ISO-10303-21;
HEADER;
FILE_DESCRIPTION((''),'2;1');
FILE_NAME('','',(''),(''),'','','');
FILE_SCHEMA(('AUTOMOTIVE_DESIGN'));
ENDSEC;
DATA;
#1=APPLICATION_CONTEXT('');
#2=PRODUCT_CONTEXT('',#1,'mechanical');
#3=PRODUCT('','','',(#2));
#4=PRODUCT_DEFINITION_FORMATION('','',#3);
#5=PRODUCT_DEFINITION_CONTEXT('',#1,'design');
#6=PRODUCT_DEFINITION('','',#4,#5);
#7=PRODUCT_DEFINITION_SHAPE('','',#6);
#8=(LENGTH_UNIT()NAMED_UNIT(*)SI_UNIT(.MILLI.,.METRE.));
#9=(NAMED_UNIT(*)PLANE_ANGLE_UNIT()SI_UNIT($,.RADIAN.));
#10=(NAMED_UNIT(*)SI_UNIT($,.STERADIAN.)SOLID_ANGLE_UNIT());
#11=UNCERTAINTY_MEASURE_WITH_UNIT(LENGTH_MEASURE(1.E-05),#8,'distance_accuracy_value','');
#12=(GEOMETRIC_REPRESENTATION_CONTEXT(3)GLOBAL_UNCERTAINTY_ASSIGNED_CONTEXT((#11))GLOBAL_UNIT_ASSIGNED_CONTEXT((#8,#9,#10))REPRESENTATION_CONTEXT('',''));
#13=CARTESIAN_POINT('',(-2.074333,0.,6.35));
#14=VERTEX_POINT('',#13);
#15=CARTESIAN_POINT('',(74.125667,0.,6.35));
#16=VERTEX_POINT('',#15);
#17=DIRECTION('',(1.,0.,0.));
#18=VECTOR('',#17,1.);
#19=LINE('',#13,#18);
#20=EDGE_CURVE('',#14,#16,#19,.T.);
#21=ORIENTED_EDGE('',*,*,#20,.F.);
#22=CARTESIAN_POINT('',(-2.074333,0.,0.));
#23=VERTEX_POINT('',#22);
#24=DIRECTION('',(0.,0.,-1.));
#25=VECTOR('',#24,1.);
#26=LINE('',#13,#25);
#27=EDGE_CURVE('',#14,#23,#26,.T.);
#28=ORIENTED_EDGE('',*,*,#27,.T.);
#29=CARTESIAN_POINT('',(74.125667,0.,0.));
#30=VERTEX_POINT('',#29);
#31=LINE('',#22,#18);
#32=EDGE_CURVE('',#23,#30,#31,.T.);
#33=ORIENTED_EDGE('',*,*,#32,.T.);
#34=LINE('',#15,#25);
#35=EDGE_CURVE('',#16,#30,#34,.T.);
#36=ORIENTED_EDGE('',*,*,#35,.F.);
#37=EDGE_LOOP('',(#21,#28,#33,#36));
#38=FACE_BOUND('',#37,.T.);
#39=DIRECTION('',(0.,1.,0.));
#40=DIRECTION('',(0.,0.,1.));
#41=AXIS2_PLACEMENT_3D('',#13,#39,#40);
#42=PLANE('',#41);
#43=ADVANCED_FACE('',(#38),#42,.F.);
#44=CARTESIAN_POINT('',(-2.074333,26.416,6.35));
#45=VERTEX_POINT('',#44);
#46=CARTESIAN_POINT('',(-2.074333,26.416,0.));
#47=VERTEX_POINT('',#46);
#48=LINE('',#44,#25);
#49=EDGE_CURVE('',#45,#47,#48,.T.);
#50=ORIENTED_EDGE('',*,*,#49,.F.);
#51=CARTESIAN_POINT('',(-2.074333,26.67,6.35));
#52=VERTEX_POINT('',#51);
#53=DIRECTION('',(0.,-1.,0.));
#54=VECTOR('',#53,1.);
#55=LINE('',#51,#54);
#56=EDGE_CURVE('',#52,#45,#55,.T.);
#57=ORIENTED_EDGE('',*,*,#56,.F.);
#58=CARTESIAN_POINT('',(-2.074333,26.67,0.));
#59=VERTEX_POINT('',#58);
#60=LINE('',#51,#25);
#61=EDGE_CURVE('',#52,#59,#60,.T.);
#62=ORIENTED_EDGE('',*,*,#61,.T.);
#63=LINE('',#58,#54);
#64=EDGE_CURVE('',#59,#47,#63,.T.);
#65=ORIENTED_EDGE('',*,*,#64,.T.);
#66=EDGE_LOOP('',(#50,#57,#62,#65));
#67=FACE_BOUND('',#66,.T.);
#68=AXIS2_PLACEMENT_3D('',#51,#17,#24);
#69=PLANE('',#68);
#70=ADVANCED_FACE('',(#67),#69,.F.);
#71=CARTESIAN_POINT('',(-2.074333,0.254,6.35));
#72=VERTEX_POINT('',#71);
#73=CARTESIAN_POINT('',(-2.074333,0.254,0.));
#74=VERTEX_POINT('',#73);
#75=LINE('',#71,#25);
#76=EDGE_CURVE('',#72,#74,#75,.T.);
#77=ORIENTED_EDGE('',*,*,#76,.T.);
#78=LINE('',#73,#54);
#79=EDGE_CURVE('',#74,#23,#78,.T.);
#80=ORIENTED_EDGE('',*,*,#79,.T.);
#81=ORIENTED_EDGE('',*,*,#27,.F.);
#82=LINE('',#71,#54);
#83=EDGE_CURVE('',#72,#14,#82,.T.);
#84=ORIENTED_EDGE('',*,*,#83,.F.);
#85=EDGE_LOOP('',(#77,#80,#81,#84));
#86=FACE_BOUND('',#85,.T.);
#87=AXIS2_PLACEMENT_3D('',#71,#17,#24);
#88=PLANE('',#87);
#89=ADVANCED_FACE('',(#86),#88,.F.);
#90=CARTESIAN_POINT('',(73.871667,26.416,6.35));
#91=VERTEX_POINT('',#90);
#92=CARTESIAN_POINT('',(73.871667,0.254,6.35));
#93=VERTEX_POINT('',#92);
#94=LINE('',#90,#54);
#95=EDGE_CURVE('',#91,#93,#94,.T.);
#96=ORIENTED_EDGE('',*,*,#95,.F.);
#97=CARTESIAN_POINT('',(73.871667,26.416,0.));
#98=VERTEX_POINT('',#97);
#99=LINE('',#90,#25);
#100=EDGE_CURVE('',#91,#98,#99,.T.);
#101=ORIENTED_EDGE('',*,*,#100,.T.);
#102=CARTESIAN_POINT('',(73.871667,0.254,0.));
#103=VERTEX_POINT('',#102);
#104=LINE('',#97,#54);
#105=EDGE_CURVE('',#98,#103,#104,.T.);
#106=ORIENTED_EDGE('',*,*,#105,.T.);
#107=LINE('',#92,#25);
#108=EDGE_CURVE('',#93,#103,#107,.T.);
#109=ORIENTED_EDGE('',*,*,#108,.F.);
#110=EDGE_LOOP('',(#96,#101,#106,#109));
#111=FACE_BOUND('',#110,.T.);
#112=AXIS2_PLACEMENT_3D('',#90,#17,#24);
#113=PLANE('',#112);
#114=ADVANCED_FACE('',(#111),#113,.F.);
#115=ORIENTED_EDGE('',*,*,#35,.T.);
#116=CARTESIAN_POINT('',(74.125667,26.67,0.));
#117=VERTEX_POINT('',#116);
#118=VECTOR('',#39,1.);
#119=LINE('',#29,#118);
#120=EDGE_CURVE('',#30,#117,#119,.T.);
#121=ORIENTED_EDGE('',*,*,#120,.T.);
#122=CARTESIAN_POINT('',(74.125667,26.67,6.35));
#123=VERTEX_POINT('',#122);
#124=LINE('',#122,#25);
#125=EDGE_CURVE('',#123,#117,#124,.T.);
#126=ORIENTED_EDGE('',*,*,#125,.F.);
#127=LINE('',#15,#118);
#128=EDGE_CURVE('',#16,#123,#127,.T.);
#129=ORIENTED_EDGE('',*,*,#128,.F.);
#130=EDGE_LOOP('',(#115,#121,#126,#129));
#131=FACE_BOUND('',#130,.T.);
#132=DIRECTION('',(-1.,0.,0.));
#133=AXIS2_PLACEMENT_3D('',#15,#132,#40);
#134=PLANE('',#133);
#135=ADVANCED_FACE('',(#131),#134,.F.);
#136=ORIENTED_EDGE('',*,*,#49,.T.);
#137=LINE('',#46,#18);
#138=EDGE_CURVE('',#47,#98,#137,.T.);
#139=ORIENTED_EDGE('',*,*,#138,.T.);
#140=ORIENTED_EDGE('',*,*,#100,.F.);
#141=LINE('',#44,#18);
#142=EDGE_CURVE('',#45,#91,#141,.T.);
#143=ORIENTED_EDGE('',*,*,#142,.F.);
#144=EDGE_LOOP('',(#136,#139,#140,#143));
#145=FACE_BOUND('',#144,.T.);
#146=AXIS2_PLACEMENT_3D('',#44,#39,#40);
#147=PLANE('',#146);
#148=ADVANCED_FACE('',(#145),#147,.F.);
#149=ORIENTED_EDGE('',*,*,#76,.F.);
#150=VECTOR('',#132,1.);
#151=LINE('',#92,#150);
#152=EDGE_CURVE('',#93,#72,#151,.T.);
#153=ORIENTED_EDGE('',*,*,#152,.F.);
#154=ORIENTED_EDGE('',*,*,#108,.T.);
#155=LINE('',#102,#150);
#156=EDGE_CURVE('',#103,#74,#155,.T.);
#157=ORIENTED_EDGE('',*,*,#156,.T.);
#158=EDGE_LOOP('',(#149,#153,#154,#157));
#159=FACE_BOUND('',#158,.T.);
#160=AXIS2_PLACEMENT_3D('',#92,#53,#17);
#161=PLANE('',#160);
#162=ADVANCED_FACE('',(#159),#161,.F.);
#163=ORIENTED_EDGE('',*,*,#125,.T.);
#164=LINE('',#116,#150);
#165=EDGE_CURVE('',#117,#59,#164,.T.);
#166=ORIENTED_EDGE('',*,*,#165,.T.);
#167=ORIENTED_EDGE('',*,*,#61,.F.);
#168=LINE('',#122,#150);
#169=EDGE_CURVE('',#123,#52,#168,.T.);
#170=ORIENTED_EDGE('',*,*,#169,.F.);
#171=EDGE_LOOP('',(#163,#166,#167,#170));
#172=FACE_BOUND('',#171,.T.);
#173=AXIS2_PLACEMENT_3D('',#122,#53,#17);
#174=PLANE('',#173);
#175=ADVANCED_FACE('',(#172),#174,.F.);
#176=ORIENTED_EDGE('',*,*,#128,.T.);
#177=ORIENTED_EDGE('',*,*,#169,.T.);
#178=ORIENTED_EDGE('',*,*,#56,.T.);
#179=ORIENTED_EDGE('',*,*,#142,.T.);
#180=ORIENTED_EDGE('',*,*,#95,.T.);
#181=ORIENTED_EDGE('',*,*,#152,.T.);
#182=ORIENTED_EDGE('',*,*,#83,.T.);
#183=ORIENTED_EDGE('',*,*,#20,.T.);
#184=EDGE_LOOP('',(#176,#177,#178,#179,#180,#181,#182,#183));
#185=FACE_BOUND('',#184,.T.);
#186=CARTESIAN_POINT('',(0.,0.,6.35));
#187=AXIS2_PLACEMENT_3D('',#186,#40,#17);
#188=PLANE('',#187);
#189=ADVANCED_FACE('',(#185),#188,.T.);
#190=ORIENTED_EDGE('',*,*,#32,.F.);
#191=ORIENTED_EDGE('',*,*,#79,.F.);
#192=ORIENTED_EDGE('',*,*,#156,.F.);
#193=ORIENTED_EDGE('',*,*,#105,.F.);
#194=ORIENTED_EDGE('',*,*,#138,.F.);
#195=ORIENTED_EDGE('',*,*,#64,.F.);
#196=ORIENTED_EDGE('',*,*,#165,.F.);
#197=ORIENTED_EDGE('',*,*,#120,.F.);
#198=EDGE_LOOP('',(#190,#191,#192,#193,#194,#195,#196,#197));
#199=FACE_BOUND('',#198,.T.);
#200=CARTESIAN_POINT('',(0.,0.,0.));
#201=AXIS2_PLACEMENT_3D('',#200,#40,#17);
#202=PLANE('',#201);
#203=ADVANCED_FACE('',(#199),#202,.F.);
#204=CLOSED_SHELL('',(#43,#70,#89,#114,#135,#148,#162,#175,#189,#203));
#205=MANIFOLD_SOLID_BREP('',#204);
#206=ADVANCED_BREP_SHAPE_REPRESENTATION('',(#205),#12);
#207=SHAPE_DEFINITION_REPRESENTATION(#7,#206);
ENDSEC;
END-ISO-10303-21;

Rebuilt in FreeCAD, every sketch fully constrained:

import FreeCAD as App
import Part
import Sketcher
Q = App.Units.Quantity

doc = App.newDocument("Part")
body = doc.addObject("PartDesign::Body", "Body")

# Sketch on XY plane
sketch1 = body.newObject("Sketcher::SketchObject", "Sketch")
sketch1.AttachmentSupport = (doc.getObject("XY_Plane"), [""])
sketch1.MapMode = "FlatFace"
sketch1.addGeometry([
    Part.LineSegment(App.Vector(-2.074333, 0, 0), App.Vector(74.125667, 0, 0)),  # 0
    Part.LineSegment(App.Vector(74.125667, 0, 0), App.Vector(74.125667, 26.67, 0)),  # 1
    Part.LineSegment(App.Vector(74.125667, 26.67, 0), App.Vector(-2.074333, 26.67, 0)),  # 2
    Part.LineSegment(App.Vector(-2.074333, 26.67, 0), App.Vector(-2.074333, 26.416, 0)),  # 3
    Part.LineSegment(App.Vector(-2.074333, 26.416, 0), App.Vector(73.871667, 26.416, 0)),  # 4
    Part.LineSegment(App.Vector(73.871667, 26.416, 0), App.Vector(73.871667, 0.254, 0)),  # 5
    Part.LineSegment(App.Vector(73.871667, 0.254, 0), App.Vector(-2.074333, 0.254, 0)),  # 6
    Part.LineSegment(App.Vector(-2.074333, 0.254, 0), App.Vector(-2.074333, 0, 0)),  # 7
], False)
sketch1.addConstraint([
    Sketcher.Constraint("Coincident", 0, 2, 1, 1),
    Sketcher.Constraint("Coincident", 1, 2, 2, 1),
    Sketcher.Constraint("Coincident", 2, 2, 3, 1),
    Sketcher.Constraint("Coincident", 3, 2, 4, 1),
    Sketcher.Constraint("Coincident", 4, 2, 5, 1),
    Sketcher.Constraint("Coincident", 5, 2, 6, 1),
    Sketcher.Constraint("Coincident", 6, 2, 7, 1),
    Sketcher.Constraint("Coincident", 7, 2, 0, 1),
    Sketcher.Constraint("Horizontal", 0),
    Sketcher.Constraint("Vertical", 1),
    Sketcher.Constraint("Horizontal", 2),
    Sketcher.Constraint("Vertical", 3),
    Sketcher.Constraint("Horizontal", 4),
    Sketcher.Constraint("Vertical", 5),
    Sketcher.Constraint("Horizontal", 6),
    Sketcher.Constraint("Vertical", 7),
    Sketcher.Constraint("PointOnObject", 0, 2, -1),
    Sketcher.Constraint("Vertical", 3, 2, 6, 2),
    Sketcher.Constraint("Equal", 3, 7),
    Sketcher.Constraint("DistanceX", 0, 1, 0, 2, Q("3 in")),
    Sketcher.Constraint("DistanceX", 4, 1, 4, 2, Q("2.99 in")),
    Sketcher.Constraint("DistanceY", 1, 1, 1, 2, Q("1.05 in")),
    Sketcher.Constraint("DistanceY", 3, 2, 3, 1, Q("0.01 in")),
    Sketcher.Constraint("DistanceX", -1, 1, 0, 2, Q("74.125667 mm")),
])
pad1 = body.newObject("PartDesign::Pad", "Pad")
pad1.Profile = sketch1
pad1.Length = Q("0.25 in")

doc.recompute()
